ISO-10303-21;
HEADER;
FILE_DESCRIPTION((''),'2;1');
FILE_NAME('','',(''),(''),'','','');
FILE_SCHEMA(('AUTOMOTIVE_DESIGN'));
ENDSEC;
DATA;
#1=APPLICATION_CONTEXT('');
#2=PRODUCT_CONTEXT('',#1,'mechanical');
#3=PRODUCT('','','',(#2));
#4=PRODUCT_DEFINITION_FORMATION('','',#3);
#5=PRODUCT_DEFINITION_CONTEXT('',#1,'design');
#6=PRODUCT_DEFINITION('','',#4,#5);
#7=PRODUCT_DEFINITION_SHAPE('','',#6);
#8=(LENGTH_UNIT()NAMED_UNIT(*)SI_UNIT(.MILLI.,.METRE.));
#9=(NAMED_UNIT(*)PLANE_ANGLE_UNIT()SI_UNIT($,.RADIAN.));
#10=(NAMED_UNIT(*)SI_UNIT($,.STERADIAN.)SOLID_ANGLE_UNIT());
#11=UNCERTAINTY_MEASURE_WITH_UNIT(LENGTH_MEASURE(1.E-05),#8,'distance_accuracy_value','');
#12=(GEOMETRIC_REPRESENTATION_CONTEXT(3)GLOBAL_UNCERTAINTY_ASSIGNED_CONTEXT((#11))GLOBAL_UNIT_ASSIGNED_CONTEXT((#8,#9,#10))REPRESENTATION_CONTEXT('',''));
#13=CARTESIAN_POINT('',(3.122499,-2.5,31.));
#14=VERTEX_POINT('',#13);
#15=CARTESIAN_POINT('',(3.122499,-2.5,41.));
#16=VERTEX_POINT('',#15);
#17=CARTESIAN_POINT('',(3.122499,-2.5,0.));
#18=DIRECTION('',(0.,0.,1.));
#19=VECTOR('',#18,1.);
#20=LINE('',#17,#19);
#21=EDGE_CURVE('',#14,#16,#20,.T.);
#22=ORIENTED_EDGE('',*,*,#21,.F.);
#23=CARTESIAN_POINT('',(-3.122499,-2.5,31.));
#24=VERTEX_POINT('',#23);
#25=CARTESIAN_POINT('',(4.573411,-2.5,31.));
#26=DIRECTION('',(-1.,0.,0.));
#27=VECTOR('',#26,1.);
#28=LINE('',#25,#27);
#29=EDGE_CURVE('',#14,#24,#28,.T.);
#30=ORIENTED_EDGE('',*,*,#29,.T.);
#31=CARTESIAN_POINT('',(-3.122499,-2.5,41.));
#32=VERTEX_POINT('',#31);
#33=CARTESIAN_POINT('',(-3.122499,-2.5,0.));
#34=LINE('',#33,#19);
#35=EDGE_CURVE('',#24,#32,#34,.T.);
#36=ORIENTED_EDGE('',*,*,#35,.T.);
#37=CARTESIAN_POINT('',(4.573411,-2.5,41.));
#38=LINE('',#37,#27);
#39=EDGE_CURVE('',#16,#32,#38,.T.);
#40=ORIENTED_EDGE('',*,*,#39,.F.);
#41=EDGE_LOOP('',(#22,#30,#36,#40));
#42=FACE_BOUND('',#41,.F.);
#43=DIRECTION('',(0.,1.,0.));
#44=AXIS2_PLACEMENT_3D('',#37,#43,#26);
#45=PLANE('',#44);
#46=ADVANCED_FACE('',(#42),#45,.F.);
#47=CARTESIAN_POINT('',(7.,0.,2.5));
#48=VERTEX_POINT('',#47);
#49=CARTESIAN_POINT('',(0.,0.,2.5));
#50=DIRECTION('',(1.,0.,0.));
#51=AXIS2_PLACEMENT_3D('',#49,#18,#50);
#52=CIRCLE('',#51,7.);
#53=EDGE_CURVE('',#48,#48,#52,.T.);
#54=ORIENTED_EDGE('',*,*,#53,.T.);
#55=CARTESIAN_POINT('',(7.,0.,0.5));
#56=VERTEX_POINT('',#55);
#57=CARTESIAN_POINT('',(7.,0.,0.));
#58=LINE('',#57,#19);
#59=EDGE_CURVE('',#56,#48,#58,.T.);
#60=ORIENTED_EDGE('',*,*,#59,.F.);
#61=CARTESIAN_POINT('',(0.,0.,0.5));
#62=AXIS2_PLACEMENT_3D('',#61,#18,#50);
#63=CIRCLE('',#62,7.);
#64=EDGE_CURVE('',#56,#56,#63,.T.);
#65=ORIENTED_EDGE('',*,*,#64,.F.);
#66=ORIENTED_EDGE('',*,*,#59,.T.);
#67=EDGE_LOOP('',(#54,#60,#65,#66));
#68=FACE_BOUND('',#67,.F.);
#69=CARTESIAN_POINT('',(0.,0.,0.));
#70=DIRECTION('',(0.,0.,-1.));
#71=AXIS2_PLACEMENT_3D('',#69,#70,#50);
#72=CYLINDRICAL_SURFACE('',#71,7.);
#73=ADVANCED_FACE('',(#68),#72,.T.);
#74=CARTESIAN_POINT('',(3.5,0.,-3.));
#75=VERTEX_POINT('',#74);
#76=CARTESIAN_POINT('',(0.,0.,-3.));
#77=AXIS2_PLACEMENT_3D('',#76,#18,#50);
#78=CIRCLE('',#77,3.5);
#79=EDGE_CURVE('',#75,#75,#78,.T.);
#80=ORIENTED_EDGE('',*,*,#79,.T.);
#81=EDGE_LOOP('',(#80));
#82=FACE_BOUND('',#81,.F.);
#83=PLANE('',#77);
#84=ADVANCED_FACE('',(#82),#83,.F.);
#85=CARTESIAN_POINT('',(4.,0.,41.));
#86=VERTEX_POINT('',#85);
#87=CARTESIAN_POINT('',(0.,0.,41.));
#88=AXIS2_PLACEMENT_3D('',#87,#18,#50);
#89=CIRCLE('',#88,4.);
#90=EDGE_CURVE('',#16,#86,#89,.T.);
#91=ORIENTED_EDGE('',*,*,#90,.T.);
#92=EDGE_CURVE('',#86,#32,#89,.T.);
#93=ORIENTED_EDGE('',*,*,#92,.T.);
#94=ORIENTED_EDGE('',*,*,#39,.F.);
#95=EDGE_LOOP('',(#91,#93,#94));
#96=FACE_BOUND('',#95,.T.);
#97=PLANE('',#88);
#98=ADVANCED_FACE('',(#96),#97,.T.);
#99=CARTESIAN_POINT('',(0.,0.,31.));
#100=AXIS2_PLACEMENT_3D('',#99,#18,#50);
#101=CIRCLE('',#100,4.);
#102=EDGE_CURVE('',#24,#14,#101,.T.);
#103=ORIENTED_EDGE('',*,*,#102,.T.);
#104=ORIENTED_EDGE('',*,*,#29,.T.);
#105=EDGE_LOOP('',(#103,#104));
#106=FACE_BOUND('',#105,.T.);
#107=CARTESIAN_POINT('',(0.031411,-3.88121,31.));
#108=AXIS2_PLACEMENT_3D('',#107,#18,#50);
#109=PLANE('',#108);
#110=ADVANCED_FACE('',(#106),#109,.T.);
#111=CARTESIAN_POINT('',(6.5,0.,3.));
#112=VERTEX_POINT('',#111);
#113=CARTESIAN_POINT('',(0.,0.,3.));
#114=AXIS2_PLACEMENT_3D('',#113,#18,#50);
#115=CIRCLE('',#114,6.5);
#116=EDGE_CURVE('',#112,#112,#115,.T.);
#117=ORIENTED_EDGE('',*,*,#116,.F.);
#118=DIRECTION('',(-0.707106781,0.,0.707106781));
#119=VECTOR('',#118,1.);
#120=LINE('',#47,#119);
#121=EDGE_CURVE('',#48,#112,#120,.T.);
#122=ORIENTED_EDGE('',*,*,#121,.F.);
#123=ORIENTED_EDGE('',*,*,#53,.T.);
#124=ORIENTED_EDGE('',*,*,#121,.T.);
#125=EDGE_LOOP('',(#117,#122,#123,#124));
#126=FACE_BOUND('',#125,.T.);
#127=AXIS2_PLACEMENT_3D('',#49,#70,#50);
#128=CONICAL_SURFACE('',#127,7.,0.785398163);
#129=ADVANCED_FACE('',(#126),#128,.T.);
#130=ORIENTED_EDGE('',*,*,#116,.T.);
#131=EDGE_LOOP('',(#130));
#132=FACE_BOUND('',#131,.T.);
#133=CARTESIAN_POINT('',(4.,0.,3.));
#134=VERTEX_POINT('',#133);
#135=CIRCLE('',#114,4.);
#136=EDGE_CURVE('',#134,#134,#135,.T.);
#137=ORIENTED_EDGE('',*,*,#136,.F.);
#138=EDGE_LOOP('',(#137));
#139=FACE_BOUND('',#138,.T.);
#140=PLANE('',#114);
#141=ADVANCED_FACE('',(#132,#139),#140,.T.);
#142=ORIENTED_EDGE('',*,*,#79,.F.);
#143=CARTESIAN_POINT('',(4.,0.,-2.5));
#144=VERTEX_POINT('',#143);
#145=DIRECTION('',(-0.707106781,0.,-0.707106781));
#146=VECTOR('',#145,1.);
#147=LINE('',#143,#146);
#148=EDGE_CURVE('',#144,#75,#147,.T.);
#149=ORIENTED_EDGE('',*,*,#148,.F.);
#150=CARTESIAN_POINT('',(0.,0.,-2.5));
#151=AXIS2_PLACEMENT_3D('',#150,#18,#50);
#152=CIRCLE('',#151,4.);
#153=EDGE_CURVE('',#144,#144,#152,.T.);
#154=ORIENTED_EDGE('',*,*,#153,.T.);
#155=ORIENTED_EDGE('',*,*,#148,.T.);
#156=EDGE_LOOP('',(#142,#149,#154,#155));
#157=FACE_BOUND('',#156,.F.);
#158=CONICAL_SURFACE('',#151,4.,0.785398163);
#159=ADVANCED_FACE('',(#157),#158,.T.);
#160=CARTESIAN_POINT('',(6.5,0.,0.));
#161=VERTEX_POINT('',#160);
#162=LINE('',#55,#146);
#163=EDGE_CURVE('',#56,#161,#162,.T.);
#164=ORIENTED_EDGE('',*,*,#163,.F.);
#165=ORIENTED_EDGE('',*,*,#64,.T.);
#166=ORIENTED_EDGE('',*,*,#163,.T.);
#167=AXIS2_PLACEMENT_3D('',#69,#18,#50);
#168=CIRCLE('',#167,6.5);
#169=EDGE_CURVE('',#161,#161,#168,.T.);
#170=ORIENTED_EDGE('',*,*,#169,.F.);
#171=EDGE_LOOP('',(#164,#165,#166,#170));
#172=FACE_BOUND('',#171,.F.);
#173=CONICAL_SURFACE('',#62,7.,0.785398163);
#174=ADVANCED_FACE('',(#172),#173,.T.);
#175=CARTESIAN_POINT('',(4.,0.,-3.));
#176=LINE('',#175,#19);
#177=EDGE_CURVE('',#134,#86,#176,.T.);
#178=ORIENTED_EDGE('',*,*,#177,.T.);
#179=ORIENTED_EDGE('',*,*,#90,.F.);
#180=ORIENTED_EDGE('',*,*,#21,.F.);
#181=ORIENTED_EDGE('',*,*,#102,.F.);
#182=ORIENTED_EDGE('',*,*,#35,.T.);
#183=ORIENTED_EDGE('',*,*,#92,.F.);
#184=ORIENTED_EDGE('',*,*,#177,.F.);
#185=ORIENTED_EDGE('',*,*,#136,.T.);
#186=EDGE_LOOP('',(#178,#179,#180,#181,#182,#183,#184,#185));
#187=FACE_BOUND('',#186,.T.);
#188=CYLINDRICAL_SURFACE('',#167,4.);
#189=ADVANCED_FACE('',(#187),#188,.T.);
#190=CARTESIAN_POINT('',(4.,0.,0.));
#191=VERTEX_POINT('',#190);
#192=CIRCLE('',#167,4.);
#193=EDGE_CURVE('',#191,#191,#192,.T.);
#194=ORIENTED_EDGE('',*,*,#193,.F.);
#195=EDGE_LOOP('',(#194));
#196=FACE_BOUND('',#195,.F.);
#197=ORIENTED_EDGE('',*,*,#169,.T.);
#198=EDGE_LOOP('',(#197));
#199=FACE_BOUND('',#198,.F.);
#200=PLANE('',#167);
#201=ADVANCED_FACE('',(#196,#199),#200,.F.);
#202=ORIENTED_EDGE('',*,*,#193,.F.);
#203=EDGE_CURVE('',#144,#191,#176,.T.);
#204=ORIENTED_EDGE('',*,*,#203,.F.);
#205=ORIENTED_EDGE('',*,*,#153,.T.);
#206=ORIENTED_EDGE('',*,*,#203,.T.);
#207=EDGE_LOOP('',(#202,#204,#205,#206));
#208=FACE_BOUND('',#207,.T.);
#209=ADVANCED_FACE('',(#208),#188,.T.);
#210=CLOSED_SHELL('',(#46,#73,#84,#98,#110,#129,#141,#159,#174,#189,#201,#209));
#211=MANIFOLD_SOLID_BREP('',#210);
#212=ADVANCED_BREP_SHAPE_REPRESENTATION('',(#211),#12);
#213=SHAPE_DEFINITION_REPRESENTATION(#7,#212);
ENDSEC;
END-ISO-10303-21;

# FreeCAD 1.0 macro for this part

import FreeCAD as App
import Part
import Sketcher
from FreeCAD import Vector


def edges_at(feature, points):
    """Names of the edges that pass closest to the given points."""
    edges = feature.Shape.Edges
    near = lambda p: min(range(len(edges)), key=lambda i: edges[i].distToShape(Part.Vertex(*p))[0])
    return sorted({f"Edge{near(p) + 1}" for p in points})


def add_polygon(sketch, points):
    """Adds a closed chain of lines whose ends are joined by coincident constraints."""
    first, n = sketch.GeometryCount, len(points)
    for a, b in zip(points, points[1:] + points[:1]):
        sketch.addGeometry(Part.LineSegment(App.Vector(*a, 0), App.Vector(*b, 0)), False)
    for i in range(n):
        sketch.addConstraint(Sketcher.Constraint("Coincident", first + i, 2, first + (i + 1) % n, 1))

doc = App.newDocument("Part")
body = doc.addObject("PartDesign::Body", "Body")

# Sketch on XY plane
sketch1 = body.newObject("Sketcher::SketchObject", "Sketch")
sketch1.AttachmentSupport = (doc.getObject("XY_Plane"), [""])
sketch1.MapMode = "FlatFace"
sketch1.addGeometry(Part.Circle(Vector(0, 0, 0), Vector(0, 0, 1), 4), False)
sketch1.addConstraint([
    Sketcher.Constraint("Coincident", 0, 3, -1, 1),
    Sketcher.Constraint("Diameter", 0, 8.0),
])
pad1 = body.newObject("PartDesign::Pad", "Pad")
pad1.Profile = sketch1
pad1.Length = 41

# Sketch on XY plane
sketch2 = body.newObject("Sketcher::SketchObject", "Sketch001")
sketch2.AttachmentSupport = (doc.getObject("XY_Plane"), [""])
sketch2.MapMode = "FlatFace"
sketch2.addGeometry(Part.Circle(Vector(0, 0, 0), Vector(0, 0, 1), 4), False)
sketch2.addConstraint([
    Sketcher.Constraint("Coincident", 0, 3, -1, 1),
    Sketcher.Constraint("Diameter", 0, 8.0),
])
pad2 = body.newObject("PartDesign::Pad", "Pad001")
pad2.Profile = sketch2
pad2.Length = 3
pad2.Reversed = True

# Sketch on XY plane
sketch3 = body.newObject("Sketcher::SketchObject", "Sketch002")
sketch3.AttachmentSupport = (doc.getObject("XY_Plane"), [""])
sketch3.MapMode = "FlatFace"
sketch3.addGeometry([
    Part.Circle(Vector(0, 0, 0), Vector(0, 0, 1), 7),
    Part.Circle(Vector(0, 0, 0), Vector(0, 0, 1), 4),
], False)
sketch3.addConstraint([
    Sketcher.Constraint("Coincident", 0, 3, -1, 1),
    Sketcher.Constraint("Coincident", 1, 3, -1, 1),
    Sketcher.Constraint("Diameter", 0, 14.0),
    Sketcher.Constraint("Diameter", 1, 8.0),
])
pad3 = body.newObject("PartDesign::Pad", "Pad002")
pad3.Profile = sketch3
pad3.Length = 3

# Sketch on XY plane
sketch4 = body.newObject("Sketcher::SketchObject", "Sketch003")
sketch4.AttachmentSupport = (doc.getObject("XY_Plane"), [""])
sketch4.MapMode = "FlatFace"
sketch4.AttachmentOffset = App.Placement(Vector(0, 0, 41), App.Rotation())
add_polygon(sketch4, [(4.573411, -5.26242), (4.573411, -2.5), (-4.510589, -2.5), (-4.510589, -5.26242)])  # lines 0-3
sketch4.addConstraint([
    Sketcher.Constraint("Vertical", 0),
    Sketcher.Constraint("Horizontal", 1),
    Sketcher.Constraint("Vertical", 2),
    Sketcher.Constraint("Horizontal", 3),
    Sketcher.Constraint("DistanceY", 0, 2, -1, 1, 2.5),
    Sketcher.Constraint("DistanceX", 1, 2, 1, 1, 9.084),
    Sketcher.Constraint("DistanceY", 0, 1, 0, 2, 2.76242),
    Sketcher.Constraint("DistanceX", -1, 1, 0, 2, 4.573411),
])
pocket1 = body.newObject("PartDesign::Pocket", "Pocket")
pocket1.Profile = sketch4
pocket1.Length = 10
doc.recompute()

chamfer = body.newObject("PartDesign::Chamfer", "Chamfer")
chamfer.Base = (pocket1, edges_at(pocket1, [(-7, 0, 3)]))
chamfer.ChamferType = "Two distances"
chamfer.Size = 0.5
chamfer.Size2 = 0.5
doc.recompute()

chamfer2 = body.newObject("PartDesign::Chamfer", "Chamfer001")
chamfer2.Base = (chamfer, edges_at(chamfer, [(-7, 0, 0)]))
chamfer2.ChamferType = "Two distances"
chamfer2.Size = 0.5
chamfer2.Size2 = 0.5
doc.recompute()

chamfer3 = body.newObject("PartDesign::Chamfer", "Chamfer002")
chamfer3.Base = (chamfer2, edges_at(chamfer2, [(-4, 0, -3)]))
chamfer3.ChamferType = "Two distances"
chamfer3.Size = 0.5
chamfer3.Size2 = 0.5

doc.recompute()
